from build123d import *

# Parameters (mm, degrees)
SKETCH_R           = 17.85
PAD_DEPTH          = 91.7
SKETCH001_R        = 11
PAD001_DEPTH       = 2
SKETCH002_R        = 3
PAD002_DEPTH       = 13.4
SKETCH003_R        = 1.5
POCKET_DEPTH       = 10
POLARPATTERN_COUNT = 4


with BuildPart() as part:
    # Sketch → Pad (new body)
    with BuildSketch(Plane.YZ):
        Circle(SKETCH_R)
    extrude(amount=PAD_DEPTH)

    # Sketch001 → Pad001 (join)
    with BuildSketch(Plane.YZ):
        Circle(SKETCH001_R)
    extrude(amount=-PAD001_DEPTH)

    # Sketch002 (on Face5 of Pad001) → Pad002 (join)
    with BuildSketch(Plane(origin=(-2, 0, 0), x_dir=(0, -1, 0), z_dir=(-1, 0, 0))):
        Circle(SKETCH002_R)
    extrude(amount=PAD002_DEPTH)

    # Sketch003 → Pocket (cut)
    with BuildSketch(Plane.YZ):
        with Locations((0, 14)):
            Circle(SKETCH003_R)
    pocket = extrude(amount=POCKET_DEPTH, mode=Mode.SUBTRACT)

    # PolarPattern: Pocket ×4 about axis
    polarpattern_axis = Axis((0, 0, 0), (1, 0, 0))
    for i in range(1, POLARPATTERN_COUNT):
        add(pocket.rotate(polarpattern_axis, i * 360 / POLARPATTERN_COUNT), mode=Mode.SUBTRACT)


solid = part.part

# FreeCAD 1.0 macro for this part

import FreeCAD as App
import Part
import Sketcher
from FreeCAD import Vector
Q = App.Units.Quantity

doc = App.newDocument("Part")
body = doc.addObject("PartDesign::Body", "Body")

sketch1 = body.newObject("Sketcher::SketchObject", "Sketch")
sketch1.AttachmentSupport = (doc.getObject("YZ_Plane"), [""])
sketch1.MapMode = "FlatFace"
sketch1.addGeometry(Part.Circle(Vector(0, 0, 0), Vector(0, 0, 1), 18), False)
sketch1.addConstraint(Sketcher.Constraint("Coincident", 0, 3, -1, 1))
sketch1.addConstraint(Sketcher.Constraint("Diameter", 0, Q("35.7 mm")))
pad1 = body.newObject("PartDesign::Pad", "Pad")
pad1.Profile = sketch1
pad1.Length = 91.7

sketch2 = body.newObject("Sketcher::SketchObject", "Sketch001")
sketch2.AttachmentSupport = (doc.getObject("YZ_Plane"), [""])
sketch2.MapMode = "FlatFace"
sketch2.addGeometry(Part.Circle(Vector(0, 0, 0), Vector(0, 0, 1), 11), False)
sketch2.addConstraint(Sketcher.Constraint("Coincident", 0, 3, -1, 1))
sketch2.addConstraint(Sketcher.Constraint("Diameter", 0, Q("22 mm")))
pad2 = body.newObject("PartDesign::Pad", "Pad001")
pad2.Profile = sketch2
pad2.Length = 2
pad2.Reversed = True

sketch3 = body.newObject("Sketcher::SketchObject", "Sketch002")
sketch3.AttachmentSupport = (doc.getObject("YZ_Plane"), [""])
sketch3.MapMode = "FlatFace"
sketch3.AttachmentOffset = App.Placement(Vector(0, 0, -2), App.Rotation())
sketch3.addGeometry(Part.Circle(Vector(0, 0, 0), Vector(0, 0, 1), 3), False)
sketch3.addConstraint(Sketcher.Constraint("Coincident", 0, 3, -1, 1))
sketch3.addConstraint(Sketcher.Constraint("Diameter", 0, Q("6 mm")))
pad3 = body.newObject("PartDesign::Pad", "Pad002")
pad3.Profile = sketch3
pad3.Length = 13.4
pad3.Reversed = True

sketch4 = body.newObject("Sketcher::SketchObject", "Sketch003")
sketch4.AttachmentSupport = (doc.getObject("YZ_Plane"), [""])
sketch4.MapMode = "FlatFace"
sketch4.addGeometry(Part.Circle(Vector(0, 14, 0), Vector(0, 0, 1), 1.5), False)
sketch4.addConstraint(Sketcher.Constraint("PointOnObject", 0, 3, -2))
sketch4.addConstraint(Sketcher.Constraint("Diameter", 0, Q("3 mm")))
sketch4.addConstraint(Sketcher.Constraint("DistanceY", -1, 1, 0, 3, Q("14 mm")))
pocket1 = body.newObject("PartDesign::Pocket", "Pocket")
pocket1.Profile = sketch4
pocket1.Length = 10
pocket1.Reversed = True
doc.recompute()

polarpattern = body.newObject("PartDesign::PolarPattern", "PolarPattern")
polarpattern.Originals = [pocket1]
polarpattern.Axis = (doc.getObject("X_Axis"), [""])
polarpattern.Angle = 360
polarpattern.Occurrences = 4
body.Tip = polarpattern

doc.recompute()
